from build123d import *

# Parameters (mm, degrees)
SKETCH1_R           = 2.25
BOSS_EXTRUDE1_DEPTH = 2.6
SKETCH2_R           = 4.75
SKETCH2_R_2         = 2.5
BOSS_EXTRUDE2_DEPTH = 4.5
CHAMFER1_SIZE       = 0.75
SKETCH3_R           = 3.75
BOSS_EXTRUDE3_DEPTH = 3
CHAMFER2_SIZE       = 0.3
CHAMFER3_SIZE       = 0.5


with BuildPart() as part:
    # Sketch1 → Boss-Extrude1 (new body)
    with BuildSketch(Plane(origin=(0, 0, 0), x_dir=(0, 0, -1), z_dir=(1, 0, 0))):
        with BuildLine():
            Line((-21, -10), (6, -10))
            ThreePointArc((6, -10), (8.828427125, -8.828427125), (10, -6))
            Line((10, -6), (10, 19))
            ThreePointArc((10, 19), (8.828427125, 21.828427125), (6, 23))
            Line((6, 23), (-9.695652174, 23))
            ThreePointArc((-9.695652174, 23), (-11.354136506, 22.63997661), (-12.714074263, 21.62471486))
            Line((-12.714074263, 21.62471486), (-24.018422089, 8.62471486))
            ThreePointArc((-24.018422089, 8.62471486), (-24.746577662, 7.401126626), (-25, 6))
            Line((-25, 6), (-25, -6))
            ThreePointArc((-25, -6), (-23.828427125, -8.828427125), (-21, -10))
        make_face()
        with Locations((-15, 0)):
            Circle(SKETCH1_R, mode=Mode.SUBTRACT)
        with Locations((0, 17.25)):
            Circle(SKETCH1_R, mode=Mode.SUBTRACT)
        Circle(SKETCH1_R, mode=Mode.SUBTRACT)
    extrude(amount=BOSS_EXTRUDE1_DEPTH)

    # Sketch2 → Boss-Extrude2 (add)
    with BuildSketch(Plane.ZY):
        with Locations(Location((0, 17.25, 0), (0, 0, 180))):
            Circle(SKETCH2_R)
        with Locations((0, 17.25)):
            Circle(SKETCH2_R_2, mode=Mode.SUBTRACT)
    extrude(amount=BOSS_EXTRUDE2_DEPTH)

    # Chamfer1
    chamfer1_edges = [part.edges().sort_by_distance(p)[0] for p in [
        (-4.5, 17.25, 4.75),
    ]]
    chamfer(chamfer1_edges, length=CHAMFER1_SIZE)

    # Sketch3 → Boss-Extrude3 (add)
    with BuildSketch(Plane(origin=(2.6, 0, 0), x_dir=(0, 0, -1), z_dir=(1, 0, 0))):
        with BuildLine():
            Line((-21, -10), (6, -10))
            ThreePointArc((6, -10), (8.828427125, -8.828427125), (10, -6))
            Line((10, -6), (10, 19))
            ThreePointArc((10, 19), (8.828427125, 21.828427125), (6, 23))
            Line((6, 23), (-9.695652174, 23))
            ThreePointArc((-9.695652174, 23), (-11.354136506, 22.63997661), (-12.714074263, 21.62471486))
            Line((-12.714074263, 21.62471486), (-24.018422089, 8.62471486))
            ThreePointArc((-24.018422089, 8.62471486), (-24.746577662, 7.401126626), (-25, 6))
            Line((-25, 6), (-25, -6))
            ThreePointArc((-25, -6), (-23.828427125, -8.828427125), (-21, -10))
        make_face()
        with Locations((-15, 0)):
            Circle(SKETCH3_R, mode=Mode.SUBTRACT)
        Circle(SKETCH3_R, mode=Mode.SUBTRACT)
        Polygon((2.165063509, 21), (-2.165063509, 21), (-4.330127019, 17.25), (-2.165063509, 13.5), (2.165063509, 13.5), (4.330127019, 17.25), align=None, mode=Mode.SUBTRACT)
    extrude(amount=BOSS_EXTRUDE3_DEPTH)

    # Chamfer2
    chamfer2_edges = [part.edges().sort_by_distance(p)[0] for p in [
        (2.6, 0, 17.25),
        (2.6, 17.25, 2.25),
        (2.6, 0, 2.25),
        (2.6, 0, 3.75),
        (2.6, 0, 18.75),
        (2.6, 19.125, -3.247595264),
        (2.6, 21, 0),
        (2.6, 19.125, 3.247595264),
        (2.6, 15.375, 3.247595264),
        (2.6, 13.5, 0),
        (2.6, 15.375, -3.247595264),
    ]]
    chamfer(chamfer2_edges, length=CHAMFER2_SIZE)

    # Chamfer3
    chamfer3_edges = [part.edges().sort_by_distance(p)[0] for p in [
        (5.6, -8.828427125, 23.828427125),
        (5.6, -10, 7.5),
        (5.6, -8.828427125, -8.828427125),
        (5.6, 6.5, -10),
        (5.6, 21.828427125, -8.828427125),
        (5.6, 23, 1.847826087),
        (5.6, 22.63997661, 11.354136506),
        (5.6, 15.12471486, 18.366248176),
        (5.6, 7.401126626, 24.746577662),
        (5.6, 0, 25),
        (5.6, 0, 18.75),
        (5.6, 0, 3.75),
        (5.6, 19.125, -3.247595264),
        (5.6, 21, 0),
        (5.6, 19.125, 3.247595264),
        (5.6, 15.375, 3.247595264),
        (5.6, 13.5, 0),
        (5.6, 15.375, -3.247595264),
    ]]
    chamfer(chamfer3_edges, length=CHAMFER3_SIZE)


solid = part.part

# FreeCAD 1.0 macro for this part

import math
import FreeCAD as App
import Part
import Sketcher
Q = App.Units.Quantity


def edges_at(feature, points):
    """Names of the edges that pass closest to the given points."""
    edges = feature.Shape.Edges
    near = lambda p: min(range(len(edges)), key=lambda i: edges[i].distToShape(Part.Vertex(*p))[0])
    return sorted({f"Edge{near(p) + 1}" for p in points})


def add_polygon(sketch, points):
    """Adds a closed chain of lines whose ends are joined by coincident constraints."""
    first, n = sketch.GeometryCount, len(points)
    for a, b in zip(points, points[1:] + points[:1]):
        sketch.addGeometry(Part.LineSegment(App.Vector(*a, 0), App.Vector(*b, 0)), False)
    for i in range(n):
        sketch.addConstraint(Sketcher.Constraint("Coincident", first + i, 2, first + (i + 1) % n, 1))

doc = App.newDocument("Part")
params = doc.addObject("Spreadsheet::Sheet", "Params")
for row, (alias, value) in enumerate([
    ("sketch1_radius", "4 mm"),
    ("sketch1_diameter", "4.5 mm"),
    ("sketch1_width", "25 mm"),
    ("sketch1_width2", "12 mm"),
    ("sketch1_height", "27 mm"),
    ("pad1_length", "2.6 mm"),
    ("sketch2_diameter", "5 mm"),
    ("sketch2_diameter2", "9.5 mm"),
    ("pad2_length", "4.5 mm"),
    ("chamfer_size", "0.75 mm"),
    ("sketch3_radius", "4 mm"),
    ("sketch3_diameter", "7.5 mm"),
    ("sketch3_width", "25 mm"),
    ("sketch3_width2", "12 mm"),
    ("sketch3_height", "27 mm"),
    ("pad3_length", "3 mm"),
    ("chamfer2_size", "0.3 mm"),
    ("chamfer3_size", "0.5 mm"),
], start=1):
    params.set(f"A{row}", alias)
    params.set(f"B{row}", "=" + value)
    params.setAlias(f"B{row}", alias)

body = doc.addObject("PartDesign::Body", "Body")

# Sketch on YZ plane
sketch1 = body.newObject("Sketcher::SketchObject", "Sketch")
sketch1.AttachmentSupport = (doc.getObject("YZ_Plane"), [""])
sketch1.MapMode = "FlatFace"
sketch1.addGeometry([
    Part.LineSegment(App.Vector(-10, 21, 0), App.Vector(-10, -6, 0)),  # 0
    Part.ArcOfCircle(Part.Circle(App.Vector(-6, -6, 0), App.Vector(0, 0, 1), 4), math.radians(180), math.radians(270)),  # 1
    Part.LineSegment(App.Vector(-6, -10, 0), App.Vector(19, -10, 0)),  # 2
    Part.ArcOfCircle(Part.Circle(App.Vector(19, -6, 0), App.Vector(0, 0, 1), 4), math.radians(-90), math.radians(0)),  # 3
    Part.LineSegment(App.Vector(23, -6, 0), App.Vector(23, 9.695652, 0)),  # 4
    Part.ArcOfCircle(Part.Circle(App.Vector(19, 9.695652, 0), App.Vector(0, 0, 1), 4), math.radians(0), math.radians(48.990913)),  # 5
    Part.LineSegment(App.Vector(21.624715, 12.714074, 0), App.Vector(8.624715, 24.018422, 0)),  # 6
    Part.ArcOfCircle(Part.Circle(App.Vector(6, 21, 0), App.Vector(0, 0, 1), 4), math.radians(48.990913), math.radians(90)),  # 7
    Part.LineSegment(App.Vector(6, 25, 0), App.Vector(-6, 25, 0)),  # 8
    Part.ArcOfCircle(Part.Circle(App.Vector(-6, 21, 0), App.Vector(0, 0, 1), 4), math.radians(90), math.radians(180)),  # 9
    Part.Circle(App.Vector(0, 15, 0), App.Vector(0, 0, 1), 2.25),  # 10
    Part.Circle(App.Vector(0, 0, 0), App.Vector(0, 0, 1), 2.25),  # 11
    Part.Circle(App.Vector(17.25, 0, 0), App.Vector(0, 0, 1), 2.25),  # 12
], False)
sketch1.addConstraint([
    Sketcher.Constraint("Tangent", 0, 2, 1, 1),
    Sketcher.Constraint("Tangent", 1, 2, 2, 1),
    Sketcher.Constraint("Tangent", 2, 2, 3, 1),
    Sketcher.Constraint("Tangent", 3, 2, 4, 1),
    Sketcher.Constraint("Tangent", 4, 2, 5, 1),
    Sketcher.Constraint("Tangent", 5, 2, 6, 1),
    Sketcher.Constraint("Tangent", 6, 2, 7, 1),
    Sketcher.Constraint("Tangent", 7, 2, 8, 1),
    Sketcher.Constraint("Tangent", 8, 2, 9, 1),
    Sketcher.Constraint("Tangent", 9, 2, 0, 1),
    Sketcher.Constraint("Vertical", 0),
    Sketcher.Constraint("Horizontal", 2),
    Sketcher.Constraint("Vertical", 4),
    Sketcher.Constraint("Horizontal", 8),
    Sketcher.Constraint("Coincident", 11, 3, -1, 1),
    Sketcher.Constraint("Equal", 1, 3),
    Sketcher.Constraint("Equal", 3, 5),
    Sketcher.Constraint("Equal", 5, 7),
    Sketcher.Constraint("Equal", 7, 9),
    Sketcher.Constraint("Equal", 10, 11),
    Sketcher.Constraint("Equal", 11, 12),
    Sketcher.Constraint("PointOnObject", 10, 3, -2),
    Sketcher.Constraint("PointOnObject", 12, 3, -1),
    Sketcher.Constraint("Radius", 1, Q("4 mm")),
    Sketcher.Constraint("Diameter", 10, Q("4.5 mm")),
    Sketcher.Constraint("DistanceX", 2, 1, 2, 2, Q("25 mm")),
    Sketcher.Constraint("DistanceX", 8, 2, 8, 1, Q("12 mm")),
    Sketcher.Constraint("DistanceY", 0, 2, 0, 1, Q("27 mm")),
    Sketcher.Constraint("DistanceX", 1, 3, -1, 1, Q("6 mm")),
    Sketcher.Constraint("DistanceY", 1, 3, -1, 1, Q("6 mm")),
    Sketcher.Constraint("DistanceY", -1, 1, 10, 3, Q("15 mm")),
    Sketcher.Constraint("DistanceX", -1, 1, 12, 3, Q("17.25 mm")),
    Sketcher.Constraint("DistanceY", 4, 1, 4, 2, Q("15.695652 mm")),
])
sketch1.setExpression("Constraints[23]", "Params.sketch1_radius")
sketch1.setExpression("Constraints[24]", "Params.sketch1_diameter")
sketch1.setExpression("Constraints[25]", "Params.sketch1_width")
sketch1.setExpression("Constraints[26]", "Params.sketch1_width2")
sketch1.setExpression("Constraints[27]", "Params.sketch1_height")
pad1 = body.newObject("PartDesign::Pad", "Pad")
pad1.Profile = sketch1
pad1.setExpression("Length", "Params.pad1_length")

# Sketch on YZ plane
sketch2 = body.newObject("Sketcher::SketchObject", "Sketch001")
sketch2.AttachmentSupport = (doc.getObject("YZ_Plane"), [""])
sketch2.MapMode = "FlatFace"
sketch2.addGeometry([
    Part.Circle(App.Vector(17.25, 0, 0), App.Vector(0, 0, 1), 4.75),
    Part.Circle(App.Vector(17.25, 0, 0), App.Vector(0, 0, 1), 2.5),
], False)
sketch2.addConstraint([
    Sketcher.Constraint("Coincident", 1, 3, 0, 3),
    Sketcher.Constraint("PointOnObject", 0, 3, -1),
    Sketcher.Constraint("Diameter", 1, Q("5 mm")),
    Sketcher.Constraint("Diameter", 0, Q("9.5 mm")),
    Sketcher.Constraint("DistanceX", -1, 1, 0, 3, Q("17.25 mm")),
])
sketch2.setExpression("Constraints[2]", "Params.sketch2_diameter")
sketch2.setExpression("Constraints[3]", "Params.sketch2_diameter2")
pad2 = body.newObject("PartDesign::Pad", "Pad001")
pad2.Profile = sketch2
pad2.setExpression("Length", "Params.pad2_length")
pad2.Reversed = True
doc.recompute()

chamfer = body.newObject("PartDesign::Chamfer", "Chamfer")
chamfer.Base = (pad2, edges_at(pad2, [(-4.5, 17.25, 4.75)]))
chamfer.setExpression("Size", "Params.chamfer_size")

# Sketch on YZ plane
sketch3 = body.newObject("Sketcher::SketchObject", "Sketch002")
sketch3.AttachmentSupport = (doc.getObject("YZ_Plane"), [""])
sketch3.MapMode = "FlatFace"
sketch3.AttachmentOffset = App.Placement(App.Vector(0, 0, 2.6), App.Rotation())
sketch3.addGeometry(Part.LineSegment(App.Vector(-10, 21, 0), App.Vector(-10, -6, 0)), False)  # 0
sketch3.addGeometry(Part.ArcOfCircle(Part.Circle(App.Vector(-6, -6, 0), App.Vector(0, 0, 1), 4), math.radians(180), math.radians(270)), False)  # 1
sketch3.addGeometry(Part.LineSegment(App.Vector(-6, -10, 0), App.Vector(19, -10, 0)), False)  # 2
sketch3.addGeometry(Part.ArcOfCircle(Part.Circle(App.Vector(19, -6, 0), App.Vector(0, 0, 1), 4), math.radians(-90), math.radians(0)), False)  # 3
sketch3.addGeometry(Part.LineSegment(App.Vector(23, -6, 0), App.Vector(23, 9.695652, 0)), False)  # 4
sketch3.addGeometry(Part.ArcOfCircle(Part.Circle(App.Vector(19, 9.695652, 0), App.Vector(0, 0, 1), 4), math.radians(0), math.radians(48.990913)), False)  # 5
sketch3.addGeometry(Part.LineSegment(App.Vector(21.624715, 12.714074, 0), App.Vector(8.624715, 24.018422, 0)), False)  # 6
sketch3.addGeometry(Part.ArcOfCircle(Part.Circle(App.Vector(6, 21, 0), App.Vector(0, 0, 1), 4), math.radians(48.990913), math.radians(90)), False)  # 7
sketch3.addGeometry(Part.LineSegment(App.Vector(6, 25, 0), App.Vector(-6, 25, 0)), False)  # 8
sketch3.addGeometry(Part.ArcOfCircle(Part.Circle(App.Vector(-6, 21, 0), App.Vector(0, 0, 1), 4), math.radians(90), math.radians(180)), False)  # 9
sketch3.addGeometry(Part.Circle(App.Vector(0, 15, 0), App.Vector(0, 0, 1), 3.75), False)  # 10
sketch3.addGeometry(Part.Circle(App.Vector(0, 0, 0), App.Vector(0, 0, 1), 3.75), False)  # 11
add_polygon(sketch3, [(21, 2.165064), (21, -2.165064), (17.25, -4.330127), (13.5, -2.165064), (13.5, 2.165064), (17.25, 4.330127)])  # lines 12-17
sketch3.addConstraint([
    Sketcher.Constraint("Tangent", 0, 2, 1, 1),
    Sketcher.Constraint("Tangent", 1, 2, 2, 1),
    Sketcher.Constraint("Tangent", 2, 2, 3, 1),
    Sketcher.Constraint("Tangent", 3, 2, 4, 1),
    Sketcher.Constraint("Tangent", 4, 2, 5, 1),
    Sketcher.Constraint("Tangent", 5, 2, 6, 1),
    Sketcher.Constraint("Tangent", 6, 2, 7, 1),
    Sketcher.Constraint("Tangent", 7, 2, 8, 1),
    Sketcher.Constraint("Tangent", 8, 2, 9, 1),
    Sketcher.Constraint("Tangent", 9, 2, 0, 1),
    Sketcher.Constraint("Vertical", 0),
    Sketcher.Constraint("Horizontal", 2),
    Sketcher.Constraint("Vertical", 4),
    Sketcher.Constraint("Horizontal", 8),
    Sketcher.Constraint("Vertical", 12),
    Sketcher.Constraint("Vertical", 15),
    Sketcher.Constraint("Coincident", 11, 3, -1, 1),
    Sketcher.Constraint("Equal", 1, 3),
    Sketcher.Constraint("Equal", 3, 5),
    Sketcher.Constraint("Equal", 5, 7),
    Sketcher.Constraint("Equal", 7, 9),
    Sketcher.Constraint("Equal", 10, 11),
    Sketcher.Constraint("Symmetric", 13, 2, 16, 2, -1),
    Sketcher.Constraint("PointOnObject", 10, 3, -2),
    Sketcher.Constraint("Parallel", 13, 16),
    Sketcher.Constraint("Parallel", 14, 17),
    Sketcher.Constraint("Horizontal", 12, 2, 14, 2),
    Sketcher.Constraint("Horizontal", 15, 2, 17, 2),
    Sketcher.Constraint("Radius", 1, Q("4 mm")),
    Sketcher.Constraint("Diameter", 10, Q("7.5 mm")),
    Sketcher.Constraint("DistanceX", 2, 1, 2, 2, Q("25 mm")),
    Sketcher.Constraint("DistanceX", 8, 2, 8, 1, Q("12 mm")),
    Sketcher.Constraint("DistanceY", 0, 2, 0, 1, Q("27 mm")),
    Sketcher.Constraint("Angle", 13, Q("-150 deg")),
    Sketcher.Constraint("DistanceX", 1, 3, -1, 1, Q("6 mm")),
    Sketcher.Constraint("DistanceY", 1, 3, -1, 1, Q("6 mm")),
    Sketcher.Constraint("DistanceY", -1, 1, 10, 3, Q("15 mm")),
    Sketcher.Constraint("DistanceX", -1, 1, 12, 2, Q("21 mm")),
    Sketcher.Constraint("DistanceX", -1, 1, 14, 2, Q("13.5 mm")),
    Sketcher.Constraint("DistanceY", 4, 1, 4, 2, Q("15.695652 mm")),
    Sketcher.Constraint("DistanceY", 12, 2, 12, 1, Q("4.330127 mm")),
])
sketch3.setExpression("Constraints[34]", "Params.sketch3_radius")
sketch3.setExpression("Constraints[35]", "Params.sketch3_diameter")
sketch3.setExpression("Constraints[36]", "Params.sketch3_width")
sketch3.setExpression("Constraints[37]", "Params.sketch3_width2")
sketch3.setExpression("Constraints[38]", "Params.sketch3_height")
pad3 = body.newObject("PartDesign::Pad", "Pad002")
pad3.Profile = sketch3
pad3.setExpression("Length", "Params.pad3_length")
doc.recompute()

chamfer2 = body.newObject("PartDesign::Chamfer", "Chamfer001")
chamfer2.Base = (pad3, edges_at(pad3, [
    (2.6, 0, 17.25),
    (2.6, 17.25, 2.25),
    (2.6, 0, 2.25),
    (2.6, 0, 3.75),
    (2.6, 0, 18.75),
    (2.6, 19.125, -3.248),
    (2.6, 21, 0),
    (2.6, 19.125, 3.248),
    (2.6, 15.375, 3.248),
    (2.6, 13.5, 0),
    (2.6, 15.375, -3.248),
]))
chamfer2.setExpression("Size", "Params.chamfer2_size")
doc.recompute()

chamfer3 = body.newObject("PartDesign::Chamfer", "Chamfer002")
chamfer3.Base = (chamfer2, edges_at(chamfer2, [
    (5.6, -8.828, 23.828),
    (5.6, -10, 7.5),
    (5.6, -8.828, -8.828),
    (5.6, 6.5, -10),
    (5.6, 21.828, -8.828),
    (5.6, 23, 1.848),
    (5.6, 22.64, 11.354),
    (5.6, 15.125, 18.366),
    (5.6, 7.401, 24.747),
    (5.6, 0, 25),
    (5.6, 0, 18.75),
    (5.6, 0, 3.75),
    (5.6, 19.125, -3.248),
    (5.6, 21, 0),
    (5.6, 19.125, 3.248),
    (5.6, 15.375, 3.248),
    (5.6, 13.5, 0),
    (5.6, 15.375, -3.248),
]))
chamfer3.setExpression("Size", "Params.chamfer3_size")

doc.recompute()
